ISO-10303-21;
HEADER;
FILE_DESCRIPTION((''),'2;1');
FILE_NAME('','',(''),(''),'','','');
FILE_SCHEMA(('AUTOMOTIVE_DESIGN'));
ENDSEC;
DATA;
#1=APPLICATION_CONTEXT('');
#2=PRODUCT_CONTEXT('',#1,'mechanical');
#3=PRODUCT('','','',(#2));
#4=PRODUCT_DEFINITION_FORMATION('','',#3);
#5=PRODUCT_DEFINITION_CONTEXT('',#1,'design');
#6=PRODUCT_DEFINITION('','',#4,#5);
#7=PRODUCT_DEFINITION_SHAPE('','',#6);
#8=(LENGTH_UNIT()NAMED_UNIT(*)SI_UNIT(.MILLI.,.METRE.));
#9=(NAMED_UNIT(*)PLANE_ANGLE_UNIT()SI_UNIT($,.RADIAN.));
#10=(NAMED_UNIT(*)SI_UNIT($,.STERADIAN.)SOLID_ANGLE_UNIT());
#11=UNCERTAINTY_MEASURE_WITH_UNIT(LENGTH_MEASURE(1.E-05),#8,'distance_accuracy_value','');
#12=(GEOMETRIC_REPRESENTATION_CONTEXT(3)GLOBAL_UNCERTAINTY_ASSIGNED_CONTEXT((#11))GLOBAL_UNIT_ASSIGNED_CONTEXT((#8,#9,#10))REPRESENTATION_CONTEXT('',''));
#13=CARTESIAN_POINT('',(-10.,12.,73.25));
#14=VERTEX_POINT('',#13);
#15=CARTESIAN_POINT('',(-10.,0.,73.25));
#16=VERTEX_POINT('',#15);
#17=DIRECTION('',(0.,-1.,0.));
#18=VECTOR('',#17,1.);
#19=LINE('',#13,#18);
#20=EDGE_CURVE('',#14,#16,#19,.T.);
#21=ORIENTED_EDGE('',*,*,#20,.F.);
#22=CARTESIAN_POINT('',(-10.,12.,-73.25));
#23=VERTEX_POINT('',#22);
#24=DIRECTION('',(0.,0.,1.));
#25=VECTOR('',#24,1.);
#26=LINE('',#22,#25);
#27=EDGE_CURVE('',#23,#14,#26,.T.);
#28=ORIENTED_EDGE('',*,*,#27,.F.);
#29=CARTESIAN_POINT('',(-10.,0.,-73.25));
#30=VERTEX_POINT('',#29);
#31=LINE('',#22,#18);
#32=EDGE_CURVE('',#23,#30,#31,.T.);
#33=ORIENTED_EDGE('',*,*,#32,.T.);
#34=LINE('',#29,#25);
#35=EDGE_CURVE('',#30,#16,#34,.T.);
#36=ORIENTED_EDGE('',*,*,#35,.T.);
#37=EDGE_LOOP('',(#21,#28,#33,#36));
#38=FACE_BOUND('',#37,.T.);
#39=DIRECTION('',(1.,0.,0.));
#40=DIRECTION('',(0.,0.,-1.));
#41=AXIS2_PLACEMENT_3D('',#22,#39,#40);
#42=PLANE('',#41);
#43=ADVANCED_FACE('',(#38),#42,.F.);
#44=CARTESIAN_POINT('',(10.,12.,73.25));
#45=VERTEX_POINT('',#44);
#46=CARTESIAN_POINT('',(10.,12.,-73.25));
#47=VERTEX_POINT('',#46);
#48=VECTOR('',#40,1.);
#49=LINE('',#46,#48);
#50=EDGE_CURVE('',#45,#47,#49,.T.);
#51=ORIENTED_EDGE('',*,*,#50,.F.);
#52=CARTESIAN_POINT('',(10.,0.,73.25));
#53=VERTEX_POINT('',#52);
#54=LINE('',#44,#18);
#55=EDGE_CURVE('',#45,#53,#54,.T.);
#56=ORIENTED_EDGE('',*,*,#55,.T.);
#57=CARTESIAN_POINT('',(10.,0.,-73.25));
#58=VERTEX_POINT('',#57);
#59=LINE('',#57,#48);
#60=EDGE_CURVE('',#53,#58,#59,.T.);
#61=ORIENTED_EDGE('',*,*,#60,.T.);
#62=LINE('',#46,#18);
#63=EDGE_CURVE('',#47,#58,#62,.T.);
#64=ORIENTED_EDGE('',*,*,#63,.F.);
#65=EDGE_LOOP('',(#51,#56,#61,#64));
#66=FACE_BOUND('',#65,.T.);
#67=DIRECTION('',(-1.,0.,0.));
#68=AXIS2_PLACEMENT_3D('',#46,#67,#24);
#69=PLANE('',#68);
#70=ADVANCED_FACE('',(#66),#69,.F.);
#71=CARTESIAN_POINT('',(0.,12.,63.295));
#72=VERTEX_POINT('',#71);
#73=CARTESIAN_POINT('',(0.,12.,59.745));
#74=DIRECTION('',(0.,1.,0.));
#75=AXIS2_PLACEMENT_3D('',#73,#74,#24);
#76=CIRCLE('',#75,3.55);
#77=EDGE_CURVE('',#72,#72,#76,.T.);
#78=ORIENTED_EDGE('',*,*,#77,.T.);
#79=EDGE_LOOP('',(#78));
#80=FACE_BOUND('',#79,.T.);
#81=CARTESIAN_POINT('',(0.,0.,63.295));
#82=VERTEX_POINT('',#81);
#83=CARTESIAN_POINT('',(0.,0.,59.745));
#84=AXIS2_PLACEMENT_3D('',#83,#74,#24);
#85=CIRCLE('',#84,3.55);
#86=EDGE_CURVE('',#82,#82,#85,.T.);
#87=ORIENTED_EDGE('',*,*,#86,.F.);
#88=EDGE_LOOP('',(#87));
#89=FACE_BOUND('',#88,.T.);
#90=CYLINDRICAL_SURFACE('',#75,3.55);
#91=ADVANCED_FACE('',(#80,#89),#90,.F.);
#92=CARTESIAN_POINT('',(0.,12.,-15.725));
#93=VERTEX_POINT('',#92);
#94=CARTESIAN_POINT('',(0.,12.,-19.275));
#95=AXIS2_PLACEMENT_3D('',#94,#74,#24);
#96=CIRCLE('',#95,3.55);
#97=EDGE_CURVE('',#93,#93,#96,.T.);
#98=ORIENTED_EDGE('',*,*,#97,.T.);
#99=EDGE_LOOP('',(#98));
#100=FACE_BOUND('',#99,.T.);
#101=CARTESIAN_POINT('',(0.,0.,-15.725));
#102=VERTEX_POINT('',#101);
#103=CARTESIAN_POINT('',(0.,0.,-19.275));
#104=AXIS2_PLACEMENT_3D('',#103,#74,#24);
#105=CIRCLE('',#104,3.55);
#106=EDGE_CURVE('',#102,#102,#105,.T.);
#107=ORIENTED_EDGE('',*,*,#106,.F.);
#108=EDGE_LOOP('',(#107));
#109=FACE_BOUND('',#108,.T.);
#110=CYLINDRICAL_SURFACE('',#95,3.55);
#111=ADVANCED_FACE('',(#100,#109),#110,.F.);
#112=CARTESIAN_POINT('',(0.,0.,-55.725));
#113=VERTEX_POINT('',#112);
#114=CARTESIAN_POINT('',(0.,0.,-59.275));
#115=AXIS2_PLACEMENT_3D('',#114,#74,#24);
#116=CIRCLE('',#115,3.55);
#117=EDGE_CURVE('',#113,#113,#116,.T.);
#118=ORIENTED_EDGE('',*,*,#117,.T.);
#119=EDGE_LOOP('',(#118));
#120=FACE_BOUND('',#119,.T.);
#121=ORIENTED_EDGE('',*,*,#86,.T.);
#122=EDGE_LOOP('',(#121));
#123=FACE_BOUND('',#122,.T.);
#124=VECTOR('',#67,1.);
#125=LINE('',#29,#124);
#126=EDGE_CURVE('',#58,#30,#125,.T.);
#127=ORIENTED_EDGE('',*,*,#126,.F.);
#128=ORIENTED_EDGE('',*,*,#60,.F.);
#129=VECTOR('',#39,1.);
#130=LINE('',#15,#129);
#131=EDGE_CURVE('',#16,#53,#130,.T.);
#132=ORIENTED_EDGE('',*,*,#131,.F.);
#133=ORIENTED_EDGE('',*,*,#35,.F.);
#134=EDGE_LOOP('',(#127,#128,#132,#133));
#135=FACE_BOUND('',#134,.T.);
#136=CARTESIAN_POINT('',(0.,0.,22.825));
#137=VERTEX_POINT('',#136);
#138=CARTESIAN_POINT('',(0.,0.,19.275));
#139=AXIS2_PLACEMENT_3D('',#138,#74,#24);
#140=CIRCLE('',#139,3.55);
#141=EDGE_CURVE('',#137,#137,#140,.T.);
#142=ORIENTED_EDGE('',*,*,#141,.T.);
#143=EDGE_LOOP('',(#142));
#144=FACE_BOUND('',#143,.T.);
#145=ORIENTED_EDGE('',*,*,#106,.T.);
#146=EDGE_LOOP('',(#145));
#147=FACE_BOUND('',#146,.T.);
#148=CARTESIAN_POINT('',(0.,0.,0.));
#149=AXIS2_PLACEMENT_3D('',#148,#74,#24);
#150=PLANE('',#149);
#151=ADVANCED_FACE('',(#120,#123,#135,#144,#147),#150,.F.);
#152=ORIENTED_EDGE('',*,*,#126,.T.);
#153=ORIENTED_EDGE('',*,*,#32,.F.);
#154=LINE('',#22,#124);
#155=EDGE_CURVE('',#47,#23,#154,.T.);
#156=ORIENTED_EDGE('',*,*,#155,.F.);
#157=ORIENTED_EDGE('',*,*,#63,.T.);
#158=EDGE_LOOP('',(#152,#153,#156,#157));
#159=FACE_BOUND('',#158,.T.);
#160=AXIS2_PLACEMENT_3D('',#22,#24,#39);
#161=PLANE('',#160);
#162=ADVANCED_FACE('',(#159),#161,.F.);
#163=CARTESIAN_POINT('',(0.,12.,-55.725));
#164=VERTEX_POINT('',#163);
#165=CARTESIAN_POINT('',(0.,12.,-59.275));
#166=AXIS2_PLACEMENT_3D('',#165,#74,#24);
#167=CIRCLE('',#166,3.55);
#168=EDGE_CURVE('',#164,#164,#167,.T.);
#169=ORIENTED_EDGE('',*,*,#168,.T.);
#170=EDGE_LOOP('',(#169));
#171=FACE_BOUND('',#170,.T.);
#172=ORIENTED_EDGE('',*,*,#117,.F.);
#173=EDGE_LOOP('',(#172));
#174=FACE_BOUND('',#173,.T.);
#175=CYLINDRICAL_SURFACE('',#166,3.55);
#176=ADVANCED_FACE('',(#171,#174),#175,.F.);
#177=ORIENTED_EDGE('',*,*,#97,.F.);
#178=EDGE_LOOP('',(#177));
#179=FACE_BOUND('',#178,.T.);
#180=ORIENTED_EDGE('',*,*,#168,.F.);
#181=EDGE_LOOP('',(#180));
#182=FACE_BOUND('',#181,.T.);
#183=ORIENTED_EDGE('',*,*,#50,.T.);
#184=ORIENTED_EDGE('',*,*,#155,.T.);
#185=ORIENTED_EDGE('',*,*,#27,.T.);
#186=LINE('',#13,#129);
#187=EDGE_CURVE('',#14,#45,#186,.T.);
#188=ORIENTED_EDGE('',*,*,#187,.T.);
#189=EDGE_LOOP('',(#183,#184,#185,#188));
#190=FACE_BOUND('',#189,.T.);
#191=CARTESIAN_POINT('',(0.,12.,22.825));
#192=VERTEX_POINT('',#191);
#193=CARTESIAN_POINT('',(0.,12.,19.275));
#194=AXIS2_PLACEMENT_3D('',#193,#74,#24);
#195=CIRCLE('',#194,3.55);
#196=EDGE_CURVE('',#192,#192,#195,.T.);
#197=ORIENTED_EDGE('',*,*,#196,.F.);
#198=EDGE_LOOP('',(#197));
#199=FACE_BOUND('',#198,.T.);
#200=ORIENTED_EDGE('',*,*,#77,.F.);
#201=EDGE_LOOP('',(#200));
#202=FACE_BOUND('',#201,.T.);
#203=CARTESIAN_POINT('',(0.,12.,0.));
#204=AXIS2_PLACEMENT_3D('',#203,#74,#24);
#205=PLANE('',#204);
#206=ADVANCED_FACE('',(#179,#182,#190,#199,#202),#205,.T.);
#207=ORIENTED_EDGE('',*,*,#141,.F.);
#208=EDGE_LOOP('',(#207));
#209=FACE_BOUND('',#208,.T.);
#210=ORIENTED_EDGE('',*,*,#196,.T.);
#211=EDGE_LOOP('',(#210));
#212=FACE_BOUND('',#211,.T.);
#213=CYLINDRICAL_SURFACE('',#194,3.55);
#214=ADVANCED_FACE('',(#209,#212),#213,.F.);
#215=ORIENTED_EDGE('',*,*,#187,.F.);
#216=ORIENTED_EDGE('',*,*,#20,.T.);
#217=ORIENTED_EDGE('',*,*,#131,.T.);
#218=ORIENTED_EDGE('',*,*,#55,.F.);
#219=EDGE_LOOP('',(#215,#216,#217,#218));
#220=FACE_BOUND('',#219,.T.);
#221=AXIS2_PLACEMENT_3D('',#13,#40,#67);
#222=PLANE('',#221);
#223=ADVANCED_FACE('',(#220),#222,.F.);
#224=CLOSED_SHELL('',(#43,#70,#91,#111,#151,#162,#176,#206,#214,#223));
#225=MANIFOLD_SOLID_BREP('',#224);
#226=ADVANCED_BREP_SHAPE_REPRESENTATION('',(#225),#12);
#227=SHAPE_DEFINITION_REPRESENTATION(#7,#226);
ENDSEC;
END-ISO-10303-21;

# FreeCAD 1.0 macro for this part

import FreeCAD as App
import Part
import Sketcher
from FreeCAD import Vector
Q = App.Units.Quantity


def add_polygon(sketch, points):
    """Adds a closed chain of lines whose ends are joined by coincident constraints."""
    first, n = sketch.GeometryCount, len(points)
    for a, b in zip(points, points[1:] + points[:1]):
        sketch.addGeometry(Part.LineSegment(App.Vector(*a, 0), App.Vector(*b, 0)), False)
    for i in range(n):
        sketch.addConstraint(Sketcher.Constraint("Coincident", first + i, 2, first + (i + 1) % n, 1))

doc = App.newDocument("Part")
body = doc.addObject("PartDesign::Body", "Body")

# Sketch on XZ plane
sketch1 = doc.addObject("Sketcher::SketchObject", "Sketch")
body.addObject(sketch1)
sketch1.AttachmentSupport = (doc.XZ_Plane, [""])
sketch1.MapMode = "FlatFace"
add_polygon(sketch1, [(-10, -73), (-10, 73), (10, 73), (10, -73)])  # lines 0-3
sketch1.addConstraint([
    Sketcher.Constraint("Vertical", 0),
    Sketcher.Constraint("Horizontal", 1),
    Sketcher.Constraint("Vertical", 2),
    Sketcher.Constraint("Horizontal", 3),
    Sketcher.Constraint("Symmetric", 0, 2, 2, 2, -1, 1),
    Sketcher.Constraint("DistanceX", 1, 1, 1, 2, Q("20 mm")),
    Sketcher.Constraint("DistanceY", 0, 1, 0, 2, Q("146.5 mm")),
])
pad1 = doc.addObject("PartDesign::Pad", "Pad")
body.addObject(pad1)
pad1.Profile = sketch1
pad1.Length = 12
pad1.Reversed = True

# Sketch on XZ plane
sketch2 = doc.addObject("Sketcher::SketchObject", "Sketch001")
body.addObject(sketch2)
sketch2.AttachmentSupport = (doc.XZ_Plane, [""])
sketch2.MapMode = "FlatFace"
sketch2.AttachmentOffset = App.Placement(Vector(0, 0, -12), App.Rotation())
sketch2.addGeometry([
    Part.Circle(Vector(0, -59.3, 0), Vector(0, 0, 1), 3.5),
    Part.Circle(Vector(0, -19.3, 0), Vector(0, 0, 1), 3.5),
    Part.Circle(Vector(0, 19.3, 0), Vector(0, 0, 1), 3.5),
    Part.Circle(Vector(0, 59.7, 0), Vector(0, 0, 1), 3.5),
], False)
sketch2.addConstraint([
    Sketcher.Constraint("Equal", 0, 1),
    Sketcher.Constraint("Equal", 1, 2),
    Sketcher.Constraint("Equal", 2, 3),
    Sketcher.Constraint("Symmetric", 1, 3, 2, 3, -1, 1),
    Sketcher.Constraint("PointOnObject", 0, 3, -2),
    Sketcher.Constraint("PointOnObject", 1, 3, -2),
    Sketcher.Constraint("PointOnObject", 3, 3, -2),
    Sketcher.Constraint("Diameter", 0, Q("7.1 mm")),
    Sketcher.Constraint("DistanceY", 0, 3, 1, 3, Q("40 mm")),
    Sketcher.Constraint("DistanceY", 1, 3, 2, 3, Q("38.55 mm")),
    Sketcher.Constraint("DistanceY", 2, 3, 3, 3, Q("40.47 mm")),
])
doc.recompute()
hole = doc.addObject("PartDesign::Hole", "Hole")
body.addObject(hole)
hole.Profile = sketch2
hole.ThreadType = "None"
hole.Diameter = 7.1
hole.DepthType = "ThroughAll"
hole.Reversed = True

doc.recompute()
